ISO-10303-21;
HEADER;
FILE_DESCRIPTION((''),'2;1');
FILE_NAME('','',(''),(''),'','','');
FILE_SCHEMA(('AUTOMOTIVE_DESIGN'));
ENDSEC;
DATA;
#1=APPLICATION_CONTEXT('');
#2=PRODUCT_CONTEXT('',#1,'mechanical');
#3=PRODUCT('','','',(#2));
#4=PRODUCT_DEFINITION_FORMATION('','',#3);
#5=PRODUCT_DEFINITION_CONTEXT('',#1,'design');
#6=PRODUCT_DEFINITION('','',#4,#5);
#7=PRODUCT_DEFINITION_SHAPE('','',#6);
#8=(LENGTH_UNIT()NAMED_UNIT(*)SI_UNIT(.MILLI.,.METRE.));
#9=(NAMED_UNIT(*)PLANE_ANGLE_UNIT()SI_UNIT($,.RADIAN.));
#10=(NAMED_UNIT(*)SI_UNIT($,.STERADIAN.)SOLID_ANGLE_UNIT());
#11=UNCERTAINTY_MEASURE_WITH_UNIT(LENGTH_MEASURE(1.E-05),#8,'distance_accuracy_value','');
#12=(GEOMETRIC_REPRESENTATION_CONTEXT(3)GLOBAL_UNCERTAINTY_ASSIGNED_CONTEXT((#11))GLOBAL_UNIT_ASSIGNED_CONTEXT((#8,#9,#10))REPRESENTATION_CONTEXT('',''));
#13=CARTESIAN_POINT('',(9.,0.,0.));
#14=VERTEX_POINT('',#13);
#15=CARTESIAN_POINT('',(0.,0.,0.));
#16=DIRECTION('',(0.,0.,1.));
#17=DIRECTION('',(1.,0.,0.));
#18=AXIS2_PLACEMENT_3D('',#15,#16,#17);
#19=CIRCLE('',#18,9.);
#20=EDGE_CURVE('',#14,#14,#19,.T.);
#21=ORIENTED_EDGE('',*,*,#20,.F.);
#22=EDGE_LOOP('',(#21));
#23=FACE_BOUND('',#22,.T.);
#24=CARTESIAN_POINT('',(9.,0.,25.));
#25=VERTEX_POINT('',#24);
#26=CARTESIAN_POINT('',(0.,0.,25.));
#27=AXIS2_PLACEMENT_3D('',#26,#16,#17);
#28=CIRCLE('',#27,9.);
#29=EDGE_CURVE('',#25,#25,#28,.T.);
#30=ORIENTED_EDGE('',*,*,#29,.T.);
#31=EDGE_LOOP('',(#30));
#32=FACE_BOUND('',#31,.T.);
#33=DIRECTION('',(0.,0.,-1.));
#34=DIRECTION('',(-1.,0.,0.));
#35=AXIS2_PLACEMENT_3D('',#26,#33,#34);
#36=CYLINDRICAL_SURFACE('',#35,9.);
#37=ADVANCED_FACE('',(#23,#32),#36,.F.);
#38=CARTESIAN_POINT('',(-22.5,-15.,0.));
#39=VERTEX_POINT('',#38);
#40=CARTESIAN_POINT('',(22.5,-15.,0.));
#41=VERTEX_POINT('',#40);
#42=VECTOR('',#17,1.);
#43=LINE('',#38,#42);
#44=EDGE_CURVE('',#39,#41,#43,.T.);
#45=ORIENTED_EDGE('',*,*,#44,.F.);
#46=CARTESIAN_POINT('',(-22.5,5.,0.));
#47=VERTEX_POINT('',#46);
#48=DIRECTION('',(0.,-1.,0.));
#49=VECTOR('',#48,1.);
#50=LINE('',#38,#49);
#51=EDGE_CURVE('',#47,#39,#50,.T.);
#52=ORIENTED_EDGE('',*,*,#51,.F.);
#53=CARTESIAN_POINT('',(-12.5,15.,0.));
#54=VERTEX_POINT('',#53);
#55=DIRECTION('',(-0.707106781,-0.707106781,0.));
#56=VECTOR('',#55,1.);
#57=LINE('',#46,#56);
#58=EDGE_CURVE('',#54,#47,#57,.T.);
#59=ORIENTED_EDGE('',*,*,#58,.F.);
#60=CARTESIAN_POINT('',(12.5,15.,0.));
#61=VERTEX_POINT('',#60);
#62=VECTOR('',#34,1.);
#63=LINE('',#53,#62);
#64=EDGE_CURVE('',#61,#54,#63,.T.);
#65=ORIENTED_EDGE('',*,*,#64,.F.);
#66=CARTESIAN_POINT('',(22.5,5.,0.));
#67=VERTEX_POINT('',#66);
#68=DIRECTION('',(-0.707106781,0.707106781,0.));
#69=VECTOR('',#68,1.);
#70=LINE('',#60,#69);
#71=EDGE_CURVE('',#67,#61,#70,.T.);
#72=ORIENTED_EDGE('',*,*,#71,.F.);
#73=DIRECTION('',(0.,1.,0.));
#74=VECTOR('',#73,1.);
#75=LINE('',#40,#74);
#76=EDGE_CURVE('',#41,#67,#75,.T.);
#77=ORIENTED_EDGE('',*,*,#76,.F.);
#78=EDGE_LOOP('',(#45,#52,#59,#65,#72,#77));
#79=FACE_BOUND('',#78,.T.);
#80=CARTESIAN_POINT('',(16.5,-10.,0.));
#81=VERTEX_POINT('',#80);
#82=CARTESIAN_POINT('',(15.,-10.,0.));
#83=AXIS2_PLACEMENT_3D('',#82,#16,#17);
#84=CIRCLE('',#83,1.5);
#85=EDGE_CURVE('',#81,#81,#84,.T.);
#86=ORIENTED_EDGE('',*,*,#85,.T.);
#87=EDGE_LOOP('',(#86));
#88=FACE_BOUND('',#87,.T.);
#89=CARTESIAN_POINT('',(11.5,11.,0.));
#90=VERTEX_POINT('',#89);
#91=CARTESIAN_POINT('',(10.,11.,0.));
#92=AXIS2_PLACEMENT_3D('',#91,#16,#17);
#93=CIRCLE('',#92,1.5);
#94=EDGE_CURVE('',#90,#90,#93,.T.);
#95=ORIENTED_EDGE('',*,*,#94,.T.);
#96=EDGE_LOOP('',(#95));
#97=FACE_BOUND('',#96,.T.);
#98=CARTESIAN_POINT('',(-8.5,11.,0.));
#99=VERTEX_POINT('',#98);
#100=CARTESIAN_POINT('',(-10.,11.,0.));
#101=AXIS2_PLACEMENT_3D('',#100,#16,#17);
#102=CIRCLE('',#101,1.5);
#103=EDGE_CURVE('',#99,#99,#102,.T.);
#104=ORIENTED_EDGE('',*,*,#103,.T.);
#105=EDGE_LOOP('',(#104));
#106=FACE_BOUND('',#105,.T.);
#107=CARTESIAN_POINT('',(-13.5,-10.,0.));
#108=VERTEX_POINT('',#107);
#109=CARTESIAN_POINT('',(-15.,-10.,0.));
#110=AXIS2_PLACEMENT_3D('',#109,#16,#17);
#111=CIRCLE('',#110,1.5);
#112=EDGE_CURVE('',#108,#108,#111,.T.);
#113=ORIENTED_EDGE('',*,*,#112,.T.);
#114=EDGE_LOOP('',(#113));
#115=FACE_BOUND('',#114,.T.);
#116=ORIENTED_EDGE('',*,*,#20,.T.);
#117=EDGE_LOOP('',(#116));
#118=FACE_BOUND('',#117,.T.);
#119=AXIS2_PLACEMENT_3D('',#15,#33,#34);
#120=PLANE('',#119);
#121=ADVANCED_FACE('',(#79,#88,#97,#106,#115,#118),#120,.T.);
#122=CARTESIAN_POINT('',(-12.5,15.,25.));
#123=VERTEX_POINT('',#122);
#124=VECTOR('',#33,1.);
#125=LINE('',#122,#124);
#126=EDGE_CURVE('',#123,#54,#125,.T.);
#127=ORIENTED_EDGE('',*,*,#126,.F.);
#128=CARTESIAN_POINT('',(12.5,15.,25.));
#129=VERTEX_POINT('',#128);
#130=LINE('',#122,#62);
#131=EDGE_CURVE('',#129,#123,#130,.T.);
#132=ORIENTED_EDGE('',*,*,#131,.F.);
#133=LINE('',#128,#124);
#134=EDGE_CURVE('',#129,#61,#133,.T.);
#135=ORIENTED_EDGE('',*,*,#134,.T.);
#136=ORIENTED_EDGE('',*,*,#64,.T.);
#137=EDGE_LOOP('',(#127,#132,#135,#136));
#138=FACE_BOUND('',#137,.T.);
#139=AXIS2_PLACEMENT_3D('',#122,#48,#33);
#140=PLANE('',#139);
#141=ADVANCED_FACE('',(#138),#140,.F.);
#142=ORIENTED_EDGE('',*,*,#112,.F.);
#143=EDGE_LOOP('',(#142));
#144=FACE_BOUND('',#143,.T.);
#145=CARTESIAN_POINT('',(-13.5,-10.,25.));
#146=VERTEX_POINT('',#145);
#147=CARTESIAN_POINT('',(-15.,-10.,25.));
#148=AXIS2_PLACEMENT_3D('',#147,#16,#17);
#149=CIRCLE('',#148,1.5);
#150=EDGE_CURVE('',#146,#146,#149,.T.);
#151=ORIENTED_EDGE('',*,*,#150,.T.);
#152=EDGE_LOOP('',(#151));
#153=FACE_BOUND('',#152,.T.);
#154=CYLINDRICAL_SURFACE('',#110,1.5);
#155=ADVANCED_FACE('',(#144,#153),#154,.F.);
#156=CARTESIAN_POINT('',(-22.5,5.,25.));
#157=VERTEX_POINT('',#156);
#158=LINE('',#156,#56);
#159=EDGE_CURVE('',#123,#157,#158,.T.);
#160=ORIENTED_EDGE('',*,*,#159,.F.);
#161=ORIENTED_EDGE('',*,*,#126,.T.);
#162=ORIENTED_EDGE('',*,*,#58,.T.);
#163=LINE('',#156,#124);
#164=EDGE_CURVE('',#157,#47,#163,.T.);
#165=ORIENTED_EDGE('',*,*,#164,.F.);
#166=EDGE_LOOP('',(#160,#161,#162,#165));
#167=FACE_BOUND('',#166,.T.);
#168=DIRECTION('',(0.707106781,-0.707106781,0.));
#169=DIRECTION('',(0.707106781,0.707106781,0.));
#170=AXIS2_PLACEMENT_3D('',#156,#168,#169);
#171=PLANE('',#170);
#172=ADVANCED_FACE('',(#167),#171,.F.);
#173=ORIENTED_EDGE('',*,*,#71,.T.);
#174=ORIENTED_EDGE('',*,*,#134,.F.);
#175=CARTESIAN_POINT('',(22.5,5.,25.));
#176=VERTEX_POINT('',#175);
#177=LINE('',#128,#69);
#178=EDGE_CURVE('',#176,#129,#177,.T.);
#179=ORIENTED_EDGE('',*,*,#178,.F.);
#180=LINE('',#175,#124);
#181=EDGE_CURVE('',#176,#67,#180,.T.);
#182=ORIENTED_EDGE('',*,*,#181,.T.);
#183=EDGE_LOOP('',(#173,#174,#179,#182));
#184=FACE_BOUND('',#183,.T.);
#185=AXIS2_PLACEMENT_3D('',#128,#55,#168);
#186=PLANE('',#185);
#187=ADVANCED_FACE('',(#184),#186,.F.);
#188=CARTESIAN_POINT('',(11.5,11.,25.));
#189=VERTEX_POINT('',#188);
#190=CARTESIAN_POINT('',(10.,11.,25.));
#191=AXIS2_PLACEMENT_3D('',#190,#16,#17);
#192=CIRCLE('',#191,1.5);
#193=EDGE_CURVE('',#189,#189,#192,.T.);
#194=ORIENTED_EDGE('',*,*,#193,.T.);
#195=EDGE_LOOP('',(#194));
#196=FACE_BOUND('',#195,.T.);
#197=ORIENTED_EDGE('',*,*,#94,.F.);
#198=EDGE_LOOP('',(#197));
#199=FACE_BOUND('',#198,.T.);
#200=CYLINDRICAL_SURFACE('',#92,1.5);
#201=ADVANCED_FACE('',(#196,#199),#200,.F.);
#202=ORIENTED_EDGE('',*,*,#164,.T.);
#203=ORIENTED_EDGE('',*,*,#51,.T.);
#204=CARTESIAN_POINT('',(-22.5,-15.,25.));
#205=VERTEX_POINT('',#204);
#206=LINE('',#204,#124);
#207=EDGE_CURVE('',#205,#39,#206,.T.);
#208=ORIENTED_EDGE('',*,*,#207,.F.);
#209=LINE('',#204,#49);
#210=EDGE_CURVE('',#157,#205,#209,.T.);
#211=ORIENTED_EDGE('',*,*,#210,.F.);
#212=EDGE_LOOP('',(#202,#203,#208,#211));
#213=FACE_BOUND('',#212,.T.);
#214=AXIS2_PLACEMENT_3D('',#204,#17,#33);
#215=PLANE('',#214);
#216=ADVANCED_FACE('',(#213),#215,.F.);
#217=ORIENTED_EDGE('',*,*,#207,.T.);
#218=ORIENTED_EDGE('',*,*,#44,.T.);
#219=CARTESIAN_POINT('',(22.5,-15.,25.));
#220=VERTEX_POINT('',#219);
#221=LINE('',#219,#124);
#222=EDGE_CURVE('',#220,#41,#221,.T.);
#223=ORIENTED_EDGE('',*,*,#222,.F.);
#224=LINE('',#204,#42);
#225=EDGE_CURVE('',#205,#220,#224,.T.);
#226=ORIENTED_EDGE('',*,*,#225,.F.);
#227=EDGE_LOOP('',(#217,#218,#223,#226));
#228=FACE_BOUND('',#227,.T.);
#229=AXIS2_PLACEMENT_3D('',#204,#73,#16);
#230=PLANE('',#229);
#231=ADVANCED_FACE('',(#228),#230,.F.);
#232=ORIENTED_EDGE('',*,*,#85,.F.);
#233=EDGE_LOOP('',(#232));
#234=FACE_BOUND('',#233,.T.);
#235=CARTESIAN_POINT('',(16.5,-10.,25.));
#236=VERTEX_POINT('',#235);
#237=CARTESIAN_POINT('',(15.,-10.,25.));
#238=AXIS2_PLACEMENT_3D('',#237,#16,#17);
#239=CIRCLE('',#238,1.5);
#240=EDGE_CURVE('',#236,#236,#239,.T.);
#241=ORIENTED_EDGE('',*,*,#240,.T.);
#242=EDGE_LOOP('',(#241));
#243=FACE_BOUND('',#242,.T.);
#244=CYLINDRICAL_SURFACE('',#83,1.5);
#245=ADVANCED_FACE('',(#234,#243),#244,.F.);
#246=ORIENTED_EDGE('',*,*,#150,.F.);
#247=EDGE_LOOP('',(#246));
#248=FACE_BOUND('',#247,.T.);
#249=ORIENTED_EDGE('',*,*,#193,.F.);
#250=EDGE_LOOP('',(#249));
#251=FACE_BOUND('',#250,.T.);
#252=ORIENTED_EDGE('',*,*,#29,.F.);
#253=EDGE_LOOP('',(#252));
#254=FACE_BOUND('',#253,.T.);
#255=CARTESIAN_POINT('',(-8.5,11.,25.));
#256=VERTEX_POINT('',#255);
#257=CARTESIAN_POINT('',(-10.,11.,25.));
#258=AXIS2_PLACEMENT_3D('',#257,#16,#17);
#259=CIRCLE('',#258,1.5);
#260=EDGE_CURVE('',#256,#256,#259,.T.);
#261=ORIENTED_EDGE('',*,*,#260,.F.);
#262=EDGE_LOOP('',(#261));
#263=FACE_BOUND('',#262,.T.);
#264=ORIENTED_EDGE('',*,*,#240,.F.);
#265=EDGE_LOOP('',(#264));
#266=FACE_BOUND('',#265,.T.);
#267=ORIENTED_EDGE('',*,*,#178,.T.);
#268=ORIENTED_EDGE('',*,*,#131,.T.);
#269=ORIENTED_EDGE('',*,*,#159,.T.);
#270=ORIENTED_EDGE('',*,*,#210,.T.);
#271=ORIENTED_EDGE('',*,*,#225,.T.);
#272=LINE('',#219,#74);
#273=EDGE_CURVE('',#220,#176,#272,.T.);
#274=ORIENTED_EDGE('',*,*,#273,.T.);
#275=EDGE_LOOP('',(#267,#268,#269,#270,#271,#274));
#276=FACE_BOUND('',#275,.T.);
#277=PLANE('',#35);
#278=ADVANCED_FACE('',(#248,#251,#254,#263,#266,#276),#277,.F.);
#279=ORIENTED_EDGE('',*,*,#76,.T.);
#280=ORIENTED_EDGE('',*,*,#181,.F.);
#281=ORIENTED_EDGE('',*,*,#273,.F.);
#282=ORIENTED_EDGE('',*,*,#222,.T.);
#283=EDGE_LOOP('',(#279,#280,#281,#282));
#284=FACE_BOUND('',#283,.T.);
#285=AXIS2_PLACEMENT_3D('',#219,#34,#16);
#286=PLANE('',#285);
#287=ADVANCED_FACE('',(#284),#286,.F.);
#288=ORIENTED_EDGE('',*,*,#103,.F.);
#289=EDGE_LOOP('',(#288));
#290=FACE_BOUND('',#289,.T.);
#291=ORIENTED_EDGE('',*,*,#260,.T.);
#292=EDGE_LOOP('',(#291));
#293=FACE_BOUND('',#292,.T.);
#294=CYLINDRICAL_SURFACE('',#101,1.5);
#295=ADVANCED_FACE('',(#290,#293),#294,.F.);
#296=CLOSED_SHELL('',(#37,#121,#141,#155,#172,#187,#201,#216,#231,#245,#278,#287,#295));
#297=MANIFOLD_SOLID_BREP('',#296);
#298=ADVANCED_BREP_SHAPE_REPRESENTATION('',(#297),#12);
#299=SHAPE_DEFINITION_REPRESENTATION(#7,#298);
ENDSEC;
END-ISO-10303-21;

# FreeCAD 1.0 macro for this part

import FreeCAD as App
import Part
import Sketcher
Q = App.Units.Quantity

doc = App.newDocument("Part")
body = doc.addObject("PartDesign::Body", "Body")

sketch1 = body.newObject("Sketcher::SketchObject", "Sketch")
sketch1.AttachmentSupport = (doc.getObject("XY_Plane"), [""])
sketch1.MapMode = "FlatFace"
sketch1.addGeometry(Part.LineSegment(App.Vector(-12, 15, 0), App.Vector(-22, 5, 0)), False)
sketch1.addGeometry(Part.LineSegment(App.Vector(-22, 5, 0), App.Vector(-22, -15, 0)), False)
sketch1.addGeometry(Part.LineSegment(App.Vector(-22, -15, 0), App.Vector(22, -15, 0)), False)
sketch1.addGeometry(Part.LineSegment(App.Vector(22, -15, 0), App.Vector(22, 5, 0)), False)
sketch1.addGeometry(Part.LineSegment(App.Vector(22, 5, 0), App.Vector(12, 15, 0)), False)
sketch1.addGeometry(Part.LineSegment(App.Vector(12, 15, 0), App.Vector(-12, 15, 0)), False)
sketch1.addGeometry(Part.Circle(App.Vector(0, 0, 0), App.Vector(0, 0, 1), 9), False)
sketch1.addConstraint(Sketcher.Constraint("Coincident", 0, 2, 1, 1))
sketch1.addConstraint(Sketcher.Constraint("Coincident", 1, 2, 2, 1))
sketch1.addConstraint(Sketcher.Constraint("Coincident", 2, 2, 3, 1))
sketch1.addConstraint(Sketcher.Constraint("Coincident", 3, 2, 4, 1))
sketch1.addConstraint(Sketcher.Constraint("Coincident", 4, 2, 5, 1))
sketch1.addConstraint(Sketcher.Constraint("Coincident", 5, 2, 0, 1))
sketch1.addConstraint(Sketcher.Constraint("Vertical", 1))
sketch1.addConstraint(Sketcher.Constraint("Horizontal", 2))
sketch1.addConstraint(Sketcher.Constraint("Vertical", 3))
sketch1.addConstraint(Sketcher.Constraint("Horizontal", 5))
sketch1.addConstraint(Sketcher.Constraint("Coincident", 6, 3, -1, 1))
sketch1.addConstraint(Sketcher.Constraint("Symmetric", 0, 2, 3, 2, -2))
sketch1.addConstraint(Sketcher.Constraint("Perpendicular", 0, 4))
sketch1.addConstraint(Sketcher.Constraint("Equal", 0, 4))
sketch1.addConstraint(Sketcher.Constraint("Diameter", 6, Q("18 mm")))
sketch1.addConstraint(Sketcher.Constraint("DistanceX", 2, 1, 2, 2, Q("45 mm")))
sketch1.addConstraint(Sketcher.Constraint("DistanceX", 5, 2, 5, 1, Q("25 mm")))
sketch1.addConstraint(Sketcher.Constraint("DistanceY", 1, 2, 1, 1, Q("20 mm")))
sketch1.addConstraint(Sketcher.Constraint("DistanceY", -1, 1, 0, 2, Q("5 mm")))
pad1 = body.newObject("PartDesign::Pad", "Pad")
pad1.Profile = sketch1
pad1.Length = 25

sketch2 = body.newObject("Sketcher::SketchObject", "Sketch001")
sketch2.AttachmentSupport = (doc.getObject("XY_Plane"), [""])
sketch2.MapMode = "FlatFace"
sketch2.AttachmentOffset = App.Placement(App.Vector(0, 0, 25), App.Rotation())
sketch2.addGeometry(Part.Circle(App.Vector(-15, -10, 0), App.Vector(0, 0, 1), 1.5), False)
sketch2.addGeometry(Part.Circle(App.Vector(15, -10, 0), App.Vector(0, 0, 1), 1.5), False)
sketch2.addGeometry(Part.Circle(App.Vector(-10, 11, 0), App.Vector(0, 0, 1), 1.5), False)
sketch2.addGeometry(Part.Circle(App.Vector(10, 11, 0), App.Vector(0, 0, 1), 1.5), False)
sketch2.addConstraint(Sketcher.Constraint("Equal", 0, 1))
sketch2.addConstraint(Sketcher.Constraint("Equal", 1, 2))
sketch2.addConstraint(Sketcher.Constraint("Equal", 2, 3))
sketch2.addConstraint(Sketcher.Constraint("Symmetric", 0, 3, 1, 3, -2))
sketch2.addConstraint(Sketcher.Constraint("Symmetric", 2, 3, 3, 3, -2))
sketch2.addConstraint(Sketcher.Constraint("Diameter", 0, Q("3 mm")))
sketch2.addConstraint(Sketcher.Constraint("DistanceX", 0, 3, -1, 1, Q("15 mm")))
sketch2.addConstraint(Sketcher.Constraint("DistanceY", 0, 3, -1, 1, Q("10 mm")))
sketch2.addConstraint(Sketcher.Constraint("DistanceX", 2, 3, -1, 1, Q("10 mm")))
sketch2.addConstraint(Sketcher.Constraint("DistanceY", -1, 1, 2, 3, Q("11 mm")))
pocket1 = body.newObject("PartDesign::Pocket", "Pocket")
pocket1.Profile = sketch2
pocket1.Length = 25

doc.recompute()
